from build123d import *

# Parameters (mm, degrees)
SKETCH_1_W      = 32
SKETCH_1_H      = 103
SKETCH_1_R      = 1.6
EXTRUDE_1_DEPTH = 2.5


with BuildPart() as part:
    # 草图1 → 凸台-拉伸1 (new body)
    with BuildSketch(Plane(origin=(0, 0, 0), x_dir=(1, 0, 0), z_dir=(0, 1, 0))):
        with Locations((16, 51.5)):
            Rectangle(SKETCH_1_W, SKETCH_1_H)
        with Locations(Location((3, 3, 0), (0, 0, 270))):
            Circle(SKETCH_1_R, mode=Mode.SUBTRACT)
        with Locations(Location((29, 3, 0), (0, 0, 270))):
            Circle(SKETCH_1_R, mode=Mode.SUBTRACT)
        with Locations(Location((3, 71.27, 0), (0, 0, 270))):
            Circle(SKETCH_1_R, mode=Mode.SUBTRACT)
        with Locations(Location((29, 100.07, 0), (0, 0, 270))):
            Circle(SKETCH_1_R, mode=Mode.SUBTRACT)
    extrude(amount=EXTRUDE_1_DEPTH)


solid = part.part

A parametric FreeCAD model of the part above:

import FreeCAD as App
import Part
import Sketcher
Q = App.Units.Quantity


def add_polygon(sketch, points):
    """Adds a closed chain of lines whose ends are joined by coincident constraints."""
    first, n = sketch.GeometryCount, len(points)
    for a, b in zip(points, points[1:] + points[:1]):
        sketch.addGeometry(Part.LineSegment(App.Vector(*a, 0), App.Vector(*b, 0)), False)
    for i in range(n):
        sketch.addConstraint(Sketcher.Constraint("Coincident", first + i, 2, first + (i + 1) % n, 1))

doc = App.newDocument("Part")
body = doc.addObject("PartDesign::Body", "Body")

sketch1 = body.newObject("Sketcher::SketchObject", "Sketch")
sketch1.AttachmentSupport = (doc.getObject("XZ_Plane"), [""])
sketch1.MapMode = "FlatFace"
add_polygon(sketch1, [(0, -103), (0, 0), (32, 0), (32, -103)])
sketch1.addGeometry(Part.Circle(App.Vector(3, -3, 0), App.Vector(0, 0, 1), 1.6), False)
sketch1.addGeometry(Part.Circle(App.Vector(29, -3, 0), App.Vector(0, 0, 1), 1.6), False)
sketch1.addGeometry(Part.Circle(App.Vector(3, -71.27, 0), App.Vector(0, 0, 1), 1.6), False)
sketch1.addGeometry(Part.Circle(App.Vector(29, -100.07, 0), App.Vector(0, 0, 1), 1.6), False)
sketch1.addConstraint([
    Sketcher.Constraint("Vertical", 0),
    Sketcher.Constraint("Horizontal", 1),
    Sketcher.Constraint("Vertical", 2),
    Sketcher.Constraint("Horizontal", 3),
    Sketcher.Constraint("Coincident", 0, 2, -1, 1),
    Sketcher.Constraint("Equal", 4, 5),
    Sketcher.Constraint("Equal", 5, 6),
    Sketcher.Constraint("Equal", 6, 7),
    Sketcher.Constraint("Horizontal", 4, 3, 5, 3),
    Sketcher.Constraint("Vertical", 4, 3, 6, 3),
    Sketcher.Constraint("Vertical", 5, 3, 7, 3),
    Sketcher.Constraint("Diameter", 4, Q("3.2 mm")),
    Sketcher.Constraint("DistanceX", 1, 1, 1, 2, Q("32 mm")),
    Sketcher.Constraint("DistanceY", 0, 1, 0, 2, Q("103 mm")),
    Sketcher.Constraint("DistanceX", -1, 1, 4, 3, Q("3 mm")),
    Sketcher.Constraint("DistanceY", 4, 3, -1, 1, Q("3 mm")),
    Sketcher.Constraint("DistanceX", -1, 1, 5, 3, Q("29 mm")),
    Sketcher.Constraint("DistanceY", 7, 3, 6, 3, Q("28.8 mm")),
    Sketcher.Constraint("DistanceY", 6, 3, -1, 1, Q("71.27 mm")),
])
pad1 = body.newObject("PartDesign::Pad", "Pad")
pad1.Profile = sketch1
pad1.Length = 2.5
pad1.Reversed = True

doc.recompute()
